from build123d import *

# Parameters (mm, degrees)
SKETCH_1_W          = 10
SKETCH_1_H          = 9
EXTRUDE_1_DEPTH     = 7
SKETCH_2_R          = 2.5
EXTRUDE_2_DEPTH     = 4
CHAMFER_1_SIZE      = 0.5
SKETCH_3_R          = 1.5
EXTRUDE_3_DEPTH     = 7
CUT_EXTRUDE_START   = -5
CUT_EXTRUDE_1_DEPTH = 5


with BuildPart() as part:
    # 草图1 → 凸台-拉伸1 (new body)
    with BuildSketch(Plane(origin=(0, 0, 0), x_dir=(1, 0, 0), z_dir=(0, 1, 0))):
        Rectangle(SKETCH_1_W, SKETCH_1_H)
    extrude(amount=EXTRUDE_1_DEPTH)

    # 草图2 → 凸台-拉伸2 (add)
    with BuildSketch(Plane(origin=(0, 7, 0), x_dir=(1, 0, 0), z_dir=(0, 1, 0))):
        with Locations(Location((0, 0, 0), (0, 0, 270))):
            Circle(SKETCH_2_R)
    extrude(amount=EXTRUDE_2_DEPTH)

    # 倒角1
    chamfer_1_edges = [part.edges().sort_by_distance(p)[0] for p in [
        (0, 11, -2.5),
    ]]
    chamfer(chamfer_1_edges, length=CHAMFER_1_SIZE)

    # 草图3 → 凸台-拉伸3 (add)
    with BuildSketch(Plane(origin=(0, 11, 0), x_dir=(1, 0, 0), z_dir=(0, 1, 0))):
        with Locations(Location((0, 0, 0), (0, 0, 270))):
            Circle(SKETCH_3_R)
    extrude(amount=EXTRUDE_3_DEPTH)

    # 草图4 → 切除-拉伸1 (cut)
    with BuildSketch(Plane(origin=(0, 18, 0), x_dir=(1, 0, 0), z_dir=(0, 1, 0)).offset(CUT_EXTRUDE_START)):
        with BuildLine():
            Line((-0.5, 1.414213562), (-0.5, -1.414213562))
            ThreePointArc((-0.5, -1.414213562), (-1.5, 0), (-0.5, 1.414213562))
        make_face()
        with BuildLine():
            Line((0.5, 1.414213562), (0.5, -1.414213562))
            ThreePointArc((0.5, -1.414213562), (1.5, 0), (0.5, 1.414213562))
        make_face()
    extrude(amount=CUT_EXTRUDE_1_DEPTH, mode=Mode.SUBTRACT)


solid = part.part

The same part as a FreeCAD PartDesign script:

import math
import FreeCAD as App
import Part
import Sketcher
from FreeCAD import Vector
Q = App.Units.Quantity


def edges_at(feature, points):
    """Names of the edges that pass closest to the given points."""
    edges = feature.Shape.Edges
    near = lambda p: min(range(len(edges)), key=lambda i: edges[i].distToShape(Part.Vertex(*p))[0])
    return sorted({f"Edge{near(p) + 1}" for p in points})

doc = App.newDocument("Part")
params = doc.addObject("Spreadsheet::Sheet", "Params")
for row, (alias, value) in enumerate([
    ("sketch1_width", "10 mm"),
    ("sketch1_height", "9 mm"),
    ("pad1_length", "7 mm"),
    ("sketch2_diameter", "5 mm"),
    ("pad2_length", "4 mm"),
    ("chamfer_size", "0.5 mm"),
    ("sketch3_diameter", "3 mm"),
    ("pad3_length", "7 mm"),
    ("sketch4_radius", "1.5 mm"),
    ("pocket1_length", "5 mm"),
], start=1):
    params.set(f"A{row}", alias)
    params.set(f"B{row}", "=" + value)
    params.setAlias(f"B{row}", alias)

body = doc.addObject("PartDesign::Body", "Body")

sketch1 = doc.addObject("Sketcher::SketchObject", "Sketch")
body.addObject(sketch1)
sketch1.AttachmentSupport = (doc.XZ_Plane, [""])
sketch1.MapMode = "FlatFace"
sketch1.addGeometry([
    Part.LineSegment(Vector(-5, -4, 0), Vector(-5, 4, 0)),
    Part.LineSegment(Vector(-5, 4, 0), Vector(5, 4, 0)),
    Part.LineSegment(Vector(5, 4, 0), Vector(5, -4, 0)),
    Part.LineSegment(Vector(5, -4, 0), Vector(-5, -4, 0)),
], False)
sketch1.addConstraint([
    Sketcher.Constraint("Coincident", 0, 2, 1, 1),
    Sketcher.Constraint("Coincident", 1, 2, 2, 1),
    Sketcher.Constraint("Coincident", 2, 2, 3, 1),
    Sketcher.Constraint("Coincident", 3, 2, 0, 1),
    Sketcher.Constraint("Vertical", 0),
    Sketcher.Constraint("Horizontal", 1),
    Sketcher.Constraint("Vertical", 2),
    Sketcher.Constraint("Horizontal", 3),
    Sketcher.Constraint("Symmetric", 0, 2, 2, 2, -1, 1),
    Sketcher.Constraint("DistanceX", 1, 1, 1, 2, Q("10 mm")),
    Sketcher.Constraint("DistanceY", 0, 1, 0, 2, Q("9 mm")),
])
sketch1.setExpression("Constraints[9]", "Params.sketch1_width")
sketch1.setExpression("Constraints[10]", "Params.sketch1_height")
pad1 = doc.addObject("PartDesign::Pad", "Pad")
body.addObject(pad1)
pad1.Profile = sketch1
pad1.setExpression("Length", "Params.pad1_length")
pad1.Reversed = True

sketch2 = doc.addObject("Sketcher::SketchObject", "Sketch001")
body.addObject(sketch2)
sketch2.AttachmentSupport = (doc.XZ_Plane, [""])
sketch2.MapMode = "FlatFace"
sketch2.AttachmentOffset = App.Placement(Vector(0, 0, -7), App.Rotation())
sketch2.addGeometry(Part.Circle(Vector(0, 0, 0), Vector(0, 0, 1), 2.5), False)
sketch2.addConstraint([
    Sketcher.Constraint("Coincident", 0, 3, -1, 1),
    Sketcher.Constraint("Diameter", 0, Q("5 mm")),
])
sketch2.setExpression("Constraints[1]", "Params.sketch2_diameter")
pad2 = doc.addObject("PartDesign::Pad", "Pad001")
body.addObject(pad2)
pad2.Profile = sketch2
pad2.setExpression("Length", "Params.pad2_length")
pad2.Reversed = True
doc.recompute()

chamfer = doc.addObject("PartDesign::Chamfer", "Chamfer")
body.addObject(chamfer)
chamfer.Base = (pad2, edges_at(pad2, [(0, 11, -2.5)]))
chamfer.setExpression("Size", "Params.chamfer_size")

sketch3 = doc.addObject("Sketcher::SketchObject", "Sketch002")
body.addObject(sketch3)
sketch3.AttachmentSupport = (doc.XZ_Plane, [""])
sketch3.MapMode = "FlatFace"
sketch3.AttachmentOffset = App.Placement(Vector(0, 0, -11), App.Rotation())
sketch3.addGeometry(Part.Circle(Vector(0, 0, 0), Vector(0, 0, 1), 1.5), False)
sketch3.addConstraint([
    Sketcher.Constraint("Coincident", 0, 3, -1, 1),
    Sketcher.Constraint("Diameter", 0, Q("3 mm")),
])
sketch3.setExpression("Constraints[1]", "Params.sketch3_diameter")
pad3 = doc.addObject("PartDesign::Pad", "Pad002")
body.addObject(pad3)
pad3.Profile = sketch3
pad3.setExpression("Length", "Params.pad3_length")
pad3.Reversed = True

sketch4 = doc.addObject("Sketcher::SketchObject", "Sketch003")
body.addObject(sketch4)
sketch4.AttachmentSupport = (doc.XZ_Plane, [""])
sketch4.MapMode = "FlatFace"
sketch4.AttachmentOffset = App.Placement(Vector(0, 0, -13), App.Rotation())
sketch4.addGeometry([
    Part.LineSegment(Vector(-0.5, 1.4, 0), Vector(-0.5, -1.4, 0)),
    Part.ArcOfCircle(Part.Circle(Vector(0, 0, 0), Vector(0, 0, 1), 1.5), math.radians(109), math.radians(251)),
    Part.LineSegment(Vector(0.5, -1.4, 0), Vector(0.5, 1.4, 0)),
    Part.ArcOfCircle(Part.Circle(Vector(0, 0, 0), Vector(0, 0, 1), 1.5), math.radians(-71), math.radians(71)),
], False)
sketch4.addConstraint([
    Sketcher.Constraint("Coincident", 0, 1, 1, 1),
    Sketcher.Constraint("Coincident", 1, 2, 0, 2),
    Sketcher.Constraint("Coincident", 2, 1, 3, 1),
    Sketcher.Constraint("Coincident", 3, 2, 2, 2),
    Sketcher.Constraint("Vertical", 0),
    Sketcher.Constraint("Vertical", 2),
    Sketcher.Constraint("Coincident", 1, 3, -1, 1),
    Sketcher.Constraint("Coincident", 3, 3, -1, 1),
    Sketcher.Constraint("Equal", 1, 3),
    Sketcher.Constraint("Horizontal", 1, 2, 2, 1),
    Sketcher.Constraint("Radius", 1, Q("1.5 mm")),
    Sketcher.Constraint("DistanceX", 1, 2, 2, 1, Q("1 mm")),
])
sketch4.setExpression("Constraints[10]", "Params.sketch4_radius")
pocket1 = doc.addObject("PartDesign::Pocket", "Pocket")
body.addObject(pocket1)
pocket1.Profile = sketch4
pocket1.setExpression("Length", "Params.pocket1_length")

doc.recompute()
